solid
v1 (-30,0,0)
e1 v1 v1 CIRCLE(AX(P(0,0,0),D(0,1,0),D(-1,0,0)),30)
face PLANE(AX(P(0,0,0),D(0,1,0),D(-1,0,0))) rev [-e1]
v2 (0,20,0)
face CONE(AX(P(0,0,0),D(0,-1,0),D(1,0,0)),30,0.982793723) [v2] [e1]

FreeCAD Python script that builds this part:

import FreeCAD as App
import Part
import Sketcher
from FreeCAD import Vector


def add_polygon(sketch, points):
    """Adds a closed chain of lines whose ends are joined by coincident constraints."""
    first, n = sketch.GeometryCount, len(points)
    for a, b in zip(points, points[1:] + points[:1]):
        sketch.addGeometry(Part.LineSegment(App.Vector(*a, 0), App.Vector(*b, 0)), False)
    for i in range(n):
        sketch.addConstraint(Sketcher.Constraint("Coincident", first + i, 2, first + (i + 1) % n, 1))

doc = App.newDocument("Part")
params = doc.addObject("Spreadsheet::Sheet", "Params")
for row, (alias, value) in enumerate([
    ("sketch1_width", "30 mm"),
    ("sketch1_height", "20 mm"),
    ("revolution_angle", "360 deg"),
], start=1):
    params.set(f"A{row}", alias)
    params.set(f"B{row}", "=" + value)
    params.setAlias(f"B{row}", alias)

body = doc.addObject("PartDesign::Body", "Body")

# Sketch on XY plane
sketch1 = body.newObject("Sketcher::SketchObject", "Sketch")
sketch1.AttachmentSupport = (doc.getObject("XY_Plane"), [""])
sketch1.MapMode = "FlatFace"
add_polygon(sketch1, [(0, 0), (30, 0), (0, 20)])  # lines 0-2
sketch1.addConstraint(Sketcher.Constraint("Horizontal", 0))
sketch1.addConstraint(Sketcher.Constraint("Vertical", 2))
sketch1.addConstraint(Sketcher.Constraint("Coincident", 2, 2, -1, 1))
sketch1.addConstraint(Sketcher.Constraint("DistanceX", 0, 1, 0, 2, 30.0))
sketch1.addConstraint(Sketcher.Constraint("DistanceY", 2, 2, 2, 1, 20.0))
sketch1.setExpression("Constraints[6]", "Params.sketch1_width")
sketch1.setExpression("Constraints[7]", "Params.sketch1_height")
revolution = body.newObject("PartDesign::Revolution", "Revolution")
revolution.Profile = sketch1
revolution.ReferenceAxis = (sketch1, ["V_Axis"])
revolution.setExpression("Angle", "Params.revolution_angle")

doc.recompute()
